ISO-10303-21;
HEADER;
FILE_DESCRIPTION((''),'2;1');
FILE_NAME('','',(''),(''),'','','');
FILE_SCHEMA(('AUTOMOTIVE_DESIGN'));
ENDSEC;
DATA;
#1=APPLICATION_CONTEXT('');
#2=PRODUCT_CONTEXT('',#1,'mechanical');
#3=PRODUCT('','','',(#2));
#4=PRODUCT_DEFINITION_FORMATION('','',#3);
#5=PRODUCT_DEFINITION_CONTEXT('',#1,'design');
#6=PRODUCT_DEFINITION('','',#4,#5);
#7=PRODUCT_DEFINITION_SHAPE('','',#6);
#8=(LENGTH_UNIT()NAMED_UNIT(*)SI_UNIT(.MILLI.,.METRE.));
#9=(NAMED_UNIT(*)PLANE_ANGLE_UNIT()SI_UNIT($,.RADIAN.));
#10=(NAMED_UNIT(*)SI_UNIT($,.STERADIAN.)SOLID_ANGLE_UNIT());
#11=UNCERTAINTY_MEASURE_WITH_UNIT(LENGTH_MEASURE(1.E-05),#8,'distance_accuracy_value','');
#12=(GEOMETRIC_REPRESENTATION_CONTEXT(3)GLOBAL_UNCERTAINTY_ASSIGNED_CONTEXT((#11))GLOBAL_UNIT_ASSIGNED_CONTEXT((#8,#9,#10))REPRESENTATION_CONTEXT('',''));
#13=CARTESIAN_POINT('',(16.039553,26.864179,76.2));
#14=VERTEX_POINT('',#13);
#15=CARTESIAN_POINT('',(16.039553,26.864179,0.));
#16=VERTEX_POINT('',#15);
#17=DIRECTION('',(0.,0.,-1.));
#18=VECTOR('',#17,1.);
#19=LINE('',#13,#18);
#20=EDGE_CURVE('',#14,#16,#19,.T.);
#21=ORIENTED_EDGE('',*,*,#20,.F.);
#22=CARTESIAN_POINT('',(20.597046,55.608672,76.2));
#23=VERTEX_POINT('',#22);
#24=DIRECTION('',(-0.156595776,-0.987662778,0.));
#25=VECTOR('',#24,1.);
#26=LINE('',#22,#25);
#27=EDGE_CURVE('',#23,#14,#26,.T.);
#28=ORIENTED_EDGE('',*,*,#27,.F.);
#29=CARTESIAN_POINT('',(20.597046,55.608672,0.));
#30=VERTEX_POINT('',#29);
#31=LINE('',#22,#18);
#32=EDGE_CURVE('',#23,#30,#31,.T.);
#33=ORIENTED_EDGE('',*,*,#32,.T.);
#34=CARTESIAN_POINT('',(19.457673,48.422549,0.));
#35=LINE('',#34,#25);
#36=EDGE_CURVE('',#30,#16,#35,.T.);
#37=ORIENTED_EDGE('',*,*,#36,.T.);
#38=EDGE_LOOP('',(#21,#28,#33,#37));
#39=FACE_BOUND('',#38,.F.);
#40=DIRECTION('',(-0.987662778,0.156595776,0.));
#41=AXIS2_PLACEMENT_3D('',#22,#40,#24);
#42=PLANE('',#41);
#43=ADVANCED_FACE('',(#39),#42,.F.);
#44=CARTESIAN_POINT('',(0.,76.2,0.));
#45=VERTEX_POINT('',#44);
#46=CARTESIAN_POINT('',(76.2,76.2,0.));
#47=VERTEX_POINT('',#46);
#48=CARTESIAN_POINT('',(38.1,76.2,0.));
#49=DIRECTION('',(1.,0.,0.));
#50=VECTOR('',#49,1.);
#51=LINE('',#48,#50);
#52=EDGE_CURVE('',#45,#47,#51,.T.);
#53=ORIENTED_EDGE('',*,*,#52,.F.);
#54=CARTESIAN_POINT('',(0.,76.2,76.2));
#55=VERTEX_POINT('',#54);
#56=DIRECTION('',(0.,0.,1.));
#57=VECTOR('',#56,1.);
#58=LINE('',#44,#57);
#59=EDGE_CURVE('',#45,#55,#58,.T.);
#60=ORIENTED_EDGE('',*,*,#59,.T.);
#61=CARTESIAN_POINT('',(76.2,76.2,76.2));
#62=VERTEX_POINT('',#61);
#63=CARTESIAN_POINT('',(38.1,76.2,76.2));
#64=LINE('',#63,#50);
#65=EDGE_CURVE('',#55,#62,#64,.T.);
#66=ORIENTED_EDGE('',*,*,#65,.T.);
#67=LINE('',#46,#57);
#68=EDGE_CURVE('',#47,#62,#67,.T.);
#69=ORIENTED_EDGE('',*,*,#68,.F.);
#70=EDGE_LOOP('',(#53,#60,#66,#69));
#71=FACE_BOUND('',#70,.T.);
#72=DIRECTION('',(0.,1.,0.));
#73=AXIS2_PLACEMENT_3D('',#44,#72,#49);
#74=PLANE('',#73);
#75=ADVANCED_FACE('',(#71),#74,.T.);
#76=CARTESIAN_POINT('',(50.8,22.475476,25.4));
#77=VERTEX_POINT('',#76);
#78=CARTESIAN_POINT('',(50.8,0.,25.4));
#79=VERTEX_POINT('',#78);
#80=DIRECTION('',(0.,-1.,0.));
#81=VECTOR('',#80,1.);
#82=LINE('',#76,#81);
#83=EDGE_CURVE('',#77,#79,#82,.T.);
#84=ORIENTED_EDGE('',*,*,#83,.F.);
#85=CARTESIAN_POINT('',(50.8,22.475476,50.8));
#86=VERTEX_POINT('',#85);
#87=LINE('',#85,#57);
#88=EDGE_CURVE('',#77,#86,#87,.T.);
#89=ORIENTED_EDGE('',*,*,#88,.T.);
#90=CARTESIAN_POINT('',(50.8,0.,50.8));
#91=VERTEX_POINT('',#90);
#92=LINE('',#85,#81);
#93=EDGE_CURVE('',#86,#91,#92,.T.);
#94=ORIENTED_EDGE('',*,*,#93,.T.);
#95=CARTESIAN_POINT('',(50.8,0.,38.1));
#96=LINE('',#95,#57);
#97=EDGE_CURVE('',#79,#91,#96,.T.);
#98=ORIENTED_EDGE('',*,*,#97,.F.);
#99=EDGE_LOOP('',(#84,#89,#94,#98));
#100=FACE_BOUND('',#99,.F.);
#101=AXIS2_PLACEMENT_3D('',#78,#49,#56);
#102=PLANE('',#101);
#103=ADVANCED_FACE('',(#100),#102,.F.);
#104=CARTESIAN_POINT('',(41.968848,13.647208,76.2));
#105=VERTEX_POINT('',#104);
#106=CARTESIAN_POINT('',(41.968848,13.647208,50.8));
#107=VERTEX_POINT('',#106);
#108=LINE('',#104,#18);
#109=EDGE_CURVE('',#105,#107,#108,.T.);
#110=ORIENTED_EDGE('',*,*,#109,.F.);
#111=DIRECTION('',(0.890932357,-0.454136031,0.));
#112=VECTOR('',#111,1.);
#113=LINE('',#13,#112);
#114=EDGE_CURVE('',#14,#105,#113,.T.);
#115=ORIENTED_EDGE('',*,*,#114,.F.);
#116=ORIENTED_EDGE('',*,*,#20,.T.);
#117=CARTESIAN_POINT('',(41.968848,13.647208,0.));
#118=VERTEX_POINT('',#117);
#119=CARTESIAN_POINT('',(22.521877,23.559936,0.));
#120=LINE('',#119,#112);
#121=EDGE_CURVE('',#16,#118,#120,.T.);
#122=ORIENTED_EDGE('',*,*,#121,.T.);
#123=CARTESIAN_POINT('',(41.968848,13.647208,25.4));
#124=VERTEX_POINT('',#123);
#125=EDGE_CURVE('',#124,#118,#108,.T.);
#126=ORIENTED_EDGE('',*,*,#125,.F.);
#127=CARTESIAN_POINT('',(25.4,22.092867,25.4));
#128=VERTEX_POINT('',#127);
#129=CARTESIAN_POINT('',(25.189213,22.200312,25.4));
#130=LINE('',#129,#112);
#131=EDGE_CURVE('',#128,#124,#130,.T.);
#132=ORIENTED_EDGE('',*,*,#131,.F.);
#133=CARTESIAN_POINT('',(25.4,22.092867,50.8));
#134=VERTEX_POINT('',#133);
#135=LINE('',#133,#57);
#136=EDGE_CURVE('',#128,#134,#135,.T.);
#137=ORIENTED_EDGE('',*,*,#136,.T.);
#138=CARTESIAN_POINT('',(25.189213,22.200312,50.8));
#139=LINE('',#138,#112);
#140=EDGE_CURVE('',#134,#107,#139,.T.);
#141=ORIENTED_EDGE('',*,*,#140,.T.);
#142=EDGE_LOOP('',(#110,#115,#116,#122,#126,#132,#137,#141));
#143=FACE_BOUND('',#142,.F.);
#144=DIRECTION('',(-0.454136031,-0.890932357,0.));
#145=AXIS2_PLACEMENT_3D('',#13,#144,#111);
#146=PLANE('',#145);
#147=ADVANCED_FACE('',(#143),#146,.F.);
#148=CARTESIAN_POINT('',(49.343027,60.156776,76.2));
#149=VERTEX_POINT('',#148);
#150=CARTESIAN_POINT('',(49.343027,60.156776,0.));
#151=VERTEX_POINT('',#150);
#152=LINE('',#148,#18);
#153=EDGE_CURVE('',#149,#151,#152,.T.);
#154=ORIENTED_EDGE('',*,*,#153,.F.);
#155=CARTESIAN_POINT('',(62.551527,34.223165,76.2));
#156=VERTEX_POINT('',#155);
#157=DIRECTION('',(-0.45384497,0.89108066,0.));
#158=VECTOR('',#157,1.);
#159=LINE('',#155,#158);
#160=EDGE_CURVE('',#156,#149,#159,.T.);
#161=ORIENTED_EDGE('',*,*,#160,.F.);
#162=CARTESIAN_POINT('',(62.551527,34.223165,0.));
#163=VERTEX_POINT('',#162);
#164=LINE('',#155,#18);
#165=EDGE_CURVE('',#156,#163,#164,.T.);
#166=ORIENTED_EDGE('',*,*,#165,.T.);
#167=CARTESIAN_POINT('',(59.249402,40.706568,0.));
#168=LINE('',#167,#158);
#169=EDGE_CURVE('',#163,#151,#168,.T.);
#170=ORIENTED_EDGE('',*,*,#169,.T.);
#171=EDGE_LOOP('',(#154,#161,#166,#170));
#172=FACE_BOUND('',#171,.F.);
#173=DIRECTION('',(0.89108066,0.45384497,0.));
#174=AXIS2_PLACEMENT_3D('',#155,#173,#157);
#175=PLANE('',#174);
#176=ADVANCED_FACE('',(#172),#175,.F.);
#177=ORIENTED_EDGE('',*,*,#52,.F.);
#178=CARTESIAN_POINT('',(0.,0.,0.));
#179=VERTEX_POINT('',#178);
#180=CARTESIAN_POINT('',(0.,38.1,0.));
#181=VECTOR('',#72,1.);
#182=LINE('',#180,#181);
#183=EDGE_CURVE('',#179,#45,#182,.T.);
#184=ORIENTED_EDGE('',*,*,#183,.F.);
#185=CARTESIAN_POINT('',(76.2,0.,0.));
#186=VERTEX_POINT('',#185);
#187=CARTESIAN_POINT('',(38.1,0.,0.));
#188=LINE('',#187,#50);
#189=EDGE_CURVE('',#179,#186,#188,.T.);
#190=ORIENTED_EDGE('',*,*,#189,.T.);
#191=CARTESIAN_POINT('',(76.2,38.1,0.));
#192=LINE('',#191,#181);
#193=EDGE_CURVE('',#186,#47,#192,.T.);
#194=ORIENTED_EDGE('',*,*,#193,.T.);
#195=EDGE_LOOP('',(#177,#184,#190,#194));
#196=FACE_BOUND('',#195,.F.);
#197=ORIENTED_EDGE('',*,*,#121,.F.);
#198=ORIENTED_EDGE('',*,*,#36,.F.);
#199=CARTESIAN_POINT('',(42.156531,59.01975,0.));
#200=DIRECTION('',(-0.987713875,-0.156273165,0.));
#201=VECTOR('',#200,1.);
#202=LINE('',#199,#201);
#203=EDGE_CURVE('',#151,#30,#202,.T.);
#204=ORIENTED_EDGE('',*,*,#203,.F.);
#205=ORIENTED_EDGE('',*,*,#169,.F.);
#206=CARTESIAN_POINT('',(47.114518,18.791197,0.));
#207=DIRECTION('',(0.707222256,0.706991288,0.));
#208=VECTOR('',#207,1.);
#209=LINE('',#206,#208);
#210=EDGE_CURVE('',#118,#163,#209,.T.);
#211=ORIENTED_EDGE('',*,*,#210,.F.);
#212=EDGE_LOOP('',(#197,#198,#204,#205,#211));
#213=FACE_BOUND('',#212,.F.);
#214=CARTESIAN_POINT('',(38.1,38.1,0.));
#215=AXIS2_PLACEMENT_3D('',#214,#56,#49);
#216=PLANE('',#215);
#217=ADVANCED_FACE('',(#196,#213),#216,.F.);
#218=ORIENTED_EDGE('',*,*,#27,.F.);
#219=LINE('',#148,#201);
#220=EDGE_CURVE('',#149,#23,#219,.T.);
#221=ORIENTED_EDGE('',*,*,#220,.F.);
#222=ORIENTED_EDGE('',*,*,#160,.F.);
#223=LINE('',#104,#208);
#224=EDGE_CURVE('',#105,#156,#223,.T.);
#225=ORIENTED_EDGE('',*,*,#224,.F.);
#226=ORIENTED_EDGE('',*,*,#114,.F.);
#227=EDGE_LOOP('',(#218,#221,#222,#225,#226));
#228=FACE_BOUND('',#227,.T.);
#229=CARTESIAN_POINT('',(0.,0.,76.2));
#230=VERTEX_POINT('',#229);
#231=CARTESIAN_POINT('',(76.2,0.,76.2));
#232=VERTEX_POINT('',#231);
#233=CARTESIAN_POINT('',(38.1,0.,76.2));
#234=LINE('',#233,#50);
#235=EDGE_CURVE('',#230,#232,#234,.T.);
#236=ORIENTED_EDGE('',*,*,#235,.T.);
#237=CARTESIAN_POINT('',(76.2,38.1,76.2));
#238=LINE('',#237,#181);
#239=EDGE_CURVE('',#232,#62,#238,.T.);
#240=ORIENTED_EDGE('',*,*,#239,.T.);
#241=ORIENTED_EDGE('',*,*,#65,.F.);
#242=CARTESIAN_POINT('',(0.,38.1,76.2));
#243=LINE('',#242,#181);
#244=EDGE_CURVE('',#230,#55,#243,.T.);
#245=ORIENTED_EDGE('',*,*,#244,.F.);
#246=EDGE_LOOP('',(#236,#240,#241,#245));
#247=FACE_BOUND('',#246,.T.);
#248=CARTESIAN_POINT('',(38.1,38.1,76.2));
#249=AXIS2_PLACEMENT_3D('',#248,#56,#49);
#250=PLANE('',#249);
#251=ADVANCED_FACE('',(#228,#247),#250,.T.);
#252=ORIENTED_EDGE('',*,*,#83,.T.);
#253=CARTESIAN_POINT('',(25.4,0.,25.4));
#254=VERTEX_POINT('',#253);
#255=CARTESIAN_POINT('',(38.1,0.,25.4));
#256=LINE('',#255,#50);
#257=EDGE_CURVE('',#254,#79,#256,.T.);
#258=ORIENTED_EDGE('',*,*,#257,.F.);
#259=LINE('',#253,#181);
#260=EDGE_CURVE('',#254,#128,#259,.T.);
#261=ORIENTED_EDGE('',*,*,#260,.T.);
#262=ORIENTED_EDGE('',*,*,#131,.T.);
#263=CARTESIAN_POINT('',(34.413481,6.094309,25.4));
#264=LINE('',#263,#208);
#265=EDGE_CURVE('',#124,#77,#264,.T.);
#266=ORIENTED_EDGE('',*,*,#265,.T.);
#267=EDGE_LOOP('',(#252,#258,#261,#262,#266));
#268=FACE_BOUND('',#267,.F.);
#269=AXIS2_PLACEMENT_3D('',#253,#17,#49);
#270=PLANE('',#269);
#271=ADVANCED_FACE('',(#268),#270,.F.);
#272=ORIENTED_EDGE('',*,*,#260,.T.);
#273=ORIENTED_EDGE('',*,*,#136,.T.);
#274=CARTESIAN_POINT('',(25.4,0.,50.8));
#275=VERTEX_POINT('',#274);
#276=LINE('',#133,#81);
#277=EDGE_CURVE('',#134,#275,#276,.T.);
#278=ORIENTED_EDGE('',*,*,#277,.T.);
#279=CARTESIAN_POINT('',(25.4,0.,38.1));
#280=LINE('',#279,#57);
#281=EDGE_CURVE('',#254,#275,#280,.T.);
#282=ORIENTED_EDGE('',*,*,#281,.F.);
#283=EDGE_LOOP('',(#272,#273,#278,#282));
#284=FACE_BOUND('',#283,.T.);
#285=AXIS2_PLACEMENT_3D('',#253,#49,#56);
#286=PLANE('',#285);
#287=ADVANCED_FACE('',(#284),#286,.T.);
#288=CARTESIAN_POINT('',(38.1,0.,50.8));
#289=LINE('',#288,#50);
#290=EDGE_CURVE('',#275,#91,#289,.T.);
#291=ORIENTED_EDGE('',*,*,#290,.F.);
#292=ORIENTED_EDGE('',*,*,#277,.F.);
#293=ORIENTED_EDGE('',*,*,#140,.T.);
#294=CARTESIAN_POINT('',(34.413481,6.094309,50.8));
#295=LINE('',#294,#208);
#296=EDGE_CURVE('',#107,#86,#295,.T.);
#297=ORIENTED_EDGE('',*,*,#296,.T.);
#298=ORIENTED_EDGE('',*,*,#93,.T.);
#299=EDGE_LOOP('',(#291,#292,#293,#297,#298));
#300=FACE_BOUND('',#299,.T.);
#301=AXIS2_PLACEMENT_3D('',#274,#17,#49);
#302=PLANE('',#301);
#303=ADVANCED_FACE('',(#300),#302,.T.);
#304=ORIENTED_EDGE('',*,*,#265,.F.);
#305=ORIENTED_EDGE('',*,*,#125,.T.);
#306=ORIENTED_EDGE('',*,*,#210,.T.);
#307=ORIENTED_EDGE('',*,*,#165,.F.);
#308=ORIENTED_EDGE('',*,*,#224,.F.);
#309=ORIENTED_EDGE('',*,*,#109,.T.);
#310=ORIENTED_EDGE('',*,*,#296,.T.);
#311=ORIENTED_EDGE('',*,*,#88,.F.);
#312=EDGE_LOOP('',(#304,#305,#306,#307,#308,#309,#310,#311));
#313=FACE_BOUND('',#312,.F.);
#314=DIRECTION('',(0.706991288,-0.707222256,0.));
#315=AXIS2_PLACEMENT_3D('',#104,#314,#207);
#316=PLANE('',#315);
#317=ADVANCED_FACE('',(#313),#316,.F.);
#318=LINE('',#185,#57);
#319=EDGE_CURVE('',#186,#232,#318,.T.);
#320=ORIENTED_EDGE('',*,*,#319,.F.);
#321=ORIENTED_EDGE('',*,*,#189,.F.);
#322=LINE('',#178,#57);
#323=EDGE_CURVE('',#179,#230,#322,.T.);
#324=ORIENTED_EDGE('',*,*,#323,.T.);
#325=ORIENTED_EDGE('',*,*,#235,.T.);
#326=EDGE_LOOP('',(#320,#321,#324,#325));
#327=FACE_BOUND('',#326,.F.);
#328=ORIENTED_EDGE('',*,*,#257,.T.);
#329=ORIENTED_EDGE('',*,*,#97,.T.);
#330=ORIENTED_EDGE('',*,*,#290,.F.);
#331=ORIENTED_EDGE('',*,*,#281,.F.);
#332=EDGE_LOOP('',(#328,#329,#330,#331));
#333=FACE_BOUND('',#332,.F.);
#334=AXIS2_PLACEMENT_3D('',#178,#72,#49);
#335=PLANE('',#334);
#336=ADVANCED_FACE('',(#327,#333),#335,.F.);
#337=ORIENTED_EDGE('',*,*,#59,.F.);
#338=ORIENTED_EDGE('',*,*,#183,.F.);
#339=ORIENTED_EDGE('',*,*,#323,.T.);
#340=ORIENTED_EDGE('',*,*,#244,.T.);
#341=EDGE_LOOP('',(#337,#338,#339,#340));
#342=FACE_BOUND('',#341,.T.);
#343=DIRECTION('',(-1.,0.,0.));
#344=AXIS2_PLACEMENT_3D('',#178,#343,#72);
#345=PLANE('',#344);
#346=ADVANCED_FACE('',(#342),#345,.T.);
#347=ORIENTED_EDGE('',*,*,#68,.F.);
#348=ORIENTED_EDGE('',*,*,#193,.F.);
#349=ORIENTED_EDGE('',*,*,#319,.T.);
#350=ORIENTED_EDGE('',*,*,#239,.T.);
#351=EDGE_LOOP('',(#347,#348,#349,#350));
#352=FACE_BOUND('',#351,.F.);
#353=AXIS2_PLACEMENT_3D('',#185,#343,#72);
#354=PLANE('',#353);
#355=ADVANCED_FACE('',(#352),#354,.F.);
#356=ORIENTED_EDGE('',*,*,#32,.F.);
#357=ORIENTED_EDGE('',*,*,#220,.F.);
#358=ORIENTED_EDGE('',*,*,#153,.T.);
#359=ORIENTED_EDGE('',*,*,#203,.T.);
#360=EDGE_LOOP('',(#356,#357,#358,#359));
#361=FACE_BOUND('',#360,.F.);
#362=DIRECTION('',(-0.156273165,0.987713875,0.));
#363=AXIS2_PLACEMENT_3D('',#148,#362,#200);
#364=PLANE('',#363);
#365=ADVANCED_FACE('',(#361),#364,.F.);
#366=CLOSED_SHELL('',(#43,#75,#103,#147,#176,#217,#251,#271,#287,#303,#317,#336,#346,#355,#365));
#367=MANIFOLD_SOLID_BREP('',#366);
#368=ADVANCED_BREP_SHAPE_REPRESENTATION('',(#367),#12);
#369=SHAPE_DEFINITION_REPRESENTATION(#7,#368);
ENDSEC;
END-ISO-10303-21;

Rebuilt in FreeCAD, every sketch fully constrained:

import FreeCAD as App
import Part
import Sketcher
Q = App.Units.Quantity

doc = App.newDocument("Part")
body = doc.addObject("PartDesign::Body", "Body")

sketch1 = body.newObject("Sketcher::SketchObject", "Sketch")
sketch1.AttachmentSupport = (doc.getObject("XY_Plane"), [""])
sketch1.MapMode = "FlatFace"
sketch1.addGeometry([
    Part.LineSegment(App.Vector(0, 76, 0), App.Vector(0, 0, 0)),
    Part.LineSegment(App.Vector(0, 0, 0), App.Vector(76, 0, 0)),
    Part.LineSegment(App.Vector(76, 0, 0), App.Vector(76, 76, 0)),
    Part.LineSegment(App.Vector(76, 76, 0), App.Vector(0, 76, 0)),
], False)
sketch1.addConstraint([
    Sketcher.Constraint("Coincident", 0, 2, 1, 1),
    Sketcher.Constraint("Coincident", 1, 2, 2, 1),
    Sketcher.Constraint("Coincident", 2, 2, 3, 1),
    Sketcher.Constraint("Coincident", 3, 2, 0, 1),
    Sketcher.Constraint("Vertical", 0),
    Sketcher.Constraint("Horizontal", 1),
    Sketcher.Constraint("Vertical", 2),
    Sketcher.Constraint("Horizontal", 3),
    Sketcher.Constraint("Coincident", 0, 2, -1, 1),
    Sketcher.Constraint("Equal", 3, 0),
    Sketcher.Constraint("DistanceX", 1, 1, 1, 2, Q("3 in")),
])
pad1 = body.newObject("PartDesign::Pad", "Pad")
pad1.Profile = sketch1
pad1.Length = Q("3 in")

sketch2 = body.newObject("Sketcher::SketchObject", "Sketch001")
sketch2.AttachmentSupport = (doc.getObject("XY_Plane"), [""])
sketch2.MapMode = "FlatFace"
sketch2.AttachmentOffset = App.Placement(App.Vector(0, 0, 3 * 25.4), App.Rotation())
sketch2.addGeometry([
    Part.LineSegment(App.Vector(42, 14, 0), App.Vector(63, 34, 0)),
    Part.LineSegment(App.Vector(63, 34, 0), App.Vector(49, 60, 0)),
    Part.LineSegment(App.Vector(49, 60, 0), App.Vector(21, 56, 0)),
    Part.LineSegment(App.Vector(21, 56, 0), App.Vector(16, 27, 0)),
    Part.LineSegment(App.Vector(16, 27, 0), App.Vector(42, 14, 0)),
], False)
sketch2.addConstraint([
    Sketcher.Constraint("Coincident", 0, 2, 1, 1),
    Sketcher.Constraint("Coincident", 1, 2, 2, 1),
    Sketcher.Constraint("Coincident", 2, 2, 3, 1),
    Sketcher.Constraint("Coincident", 3, 2, 4, 1),
    Sketcher.Constraint("Coincident", 4, 2, 0, 1),
    Sketcher.Constraint("Equal", 0, 1),
    Sketcher.Constraint("Equal", 1, 2),
    Sketcher.Constraint("Equal", 2, 3),
    Sketcher.Constraint("Equal", 3, 4),
    Sketcher.Constraint("DistanceX", 1, 2, 0, 2, Q("13.2085 mm")),
    Sketcher.Constraint("Distance", 0, Q("29.103551 mm")),
    Sketcher.Constraint("DistanceY", -1, 1, 3, 2, Q("26.864179 mm")),
    Sketcher.Constraint("DistanceX", 2, 2, 1, 2, Q("28.745981 mm")),
    Sketcher.Constraint("DistanceY", 4, 2, 3, 2, Q("13.216971 mm")),
    Sketcher.Constraint("DistanceX", -1, 1, 0, 2, Q("62.551527 mm")),
])
pocket1 = body.newObject("PartDesign::Pocket", "Pocket")
pocket1.Profile = sketch2
pocket1.Type = "ThroughAll"

sketch3 = body.newObject("Sketcher::SketchObject", "Sketch002")
sketch3.AttachmentSupport = (doc.getObject("XZ_Plane"), [""])
sketch3.MapMode = "FlatFace"
sketch3.addGeometry([
    Part.LineSegment(App.Vector(25, 51, 0), App.Vector(25, 25, 0)),
    Part.LineSegment(App.Vector(25, 25, 0), App.Vector(51, 25, 0)),
    Part.LineSegment(App.Vector(51, 25, 0), App.Vector(51, 51, 0)),
    Part.LineSegment(App.Vector(51, 51, 0), App.Vector(25, 51, 0)),
], False)
sketch3.addConstraint([
    Sketcher.Constraint("Coincident", 0, 2, 1, 1),
    Sketcher.Constraint("Coincident", 1, 2, 2, 1),
    Sketcher.Constraint("Coincident", 2, 2, 3, 1),
    Sketcher.Constraint("Coincident", 3, 2, 0, 1),
    Sketcher.Constraint("Vertical", 0),
    Sketcher.Constraint("Horizontal", 1),
    Sketcher.Constraint("Vertical", 2),
    Sketcher.Constraint("Horizontal", 3),
    Sketcher.Constraint("Equal", 3, 0),
    Sketcher.Constraint("DistanceX", 1, 1, 1, 2, Q("1 in")),
    Sketcher.Constraint("DistanceX", -1, 1, 0, 2, Q("1 in")),
    Sketcher.Constraint("DistanceY", -1, 1, 0, 2, Q("1 in")),
])
pocket2 = body.newObject("PartDesign::Pocket", "Pocket001")
pocket2.Profile = sketch3
pocket2.Length = Q("0.5 in")

sketch4 = body.newObject("Sketcher::SketchObject", "Sketch003")
sketch4.AttachmentSupport = (doc.getObject("XZ_Plane"), [""])
sketch4.MapMode = "FlatFace"
sketch4.addGeometry([
    Part.LineSegment(App.Vector(25, 51, 0), App.Vector(25, 25, 0)),
    Part.LineSegment(App.Vector(25, 25, 0), App.Vector(51, 25, 0)),
    Part.LineSegment(App.Vector(51, 25, 0), App.Vector(51, 51, 0)),
    Part.LineSegment(App.Vector(51, 51, 0), App.Vector(25, 51, 0)),
], False)
sketch4.addConstraint([
    Sketcher.Constraint("Coincident", 0, 2, 1, 1),
    Sketcher.Constraint("Coincident", 1, 2, 2, 1),
    Sketcher.Constraint("Coincident", 2, 2, 3, 1),
    Sketcher.Constraint("Coincident", 3, 2, 0, 1),
    Sketcher.Constraint("Vertical", 0),
    Sketcher.Constraint("Horizontal", 1),
    Sketcher.Constraint("Vertical", 2),
    Sketcher.Constraint("Horizontal", 3),
    Sketcher.Constraint("Equal", 3, 0),
    Sketcher.Constraint("DistanceX", 1, 1, 1, 2, Q("1 in")),
    Sketcher.Constraint("DistanceX", -1, 1, 0, 2, Q("1 in")),
    Sketcher.Constraint("DistanceY", -1, 1, 0, 2, Q("1 in")),
])
pocket3 = body.newObject("PartDesign::Pocket", "Pocket002")
pocket3.Profile = sketch4
pocket3.Length = Q("1 in")

doc.recompute()
